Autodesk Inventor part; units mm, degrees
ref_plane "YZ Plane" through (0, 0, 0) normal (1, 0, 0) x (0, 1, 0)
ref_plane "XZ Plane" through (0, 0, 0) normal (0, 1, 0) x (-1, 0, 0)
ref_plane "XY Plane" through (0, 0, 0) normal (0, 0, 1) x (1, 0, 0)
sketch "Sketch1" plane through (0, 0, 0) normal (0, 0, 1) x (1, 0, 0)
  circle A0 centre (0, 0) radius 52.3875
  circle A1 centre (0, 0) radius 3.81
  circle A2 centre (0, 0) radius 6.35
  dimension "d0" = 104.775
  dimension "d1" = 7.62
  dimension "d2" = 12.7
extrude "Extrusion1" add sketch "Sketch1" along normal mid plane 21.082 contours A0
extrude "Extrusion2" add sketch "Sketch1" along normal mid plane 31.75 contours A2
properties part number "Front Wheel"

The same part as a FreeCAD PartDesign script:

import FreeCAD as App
import Part
import Sketcher
Q = App.Units.Quantity

doc = App.newDocument("Part")
body = doc.addObject("PartDesign::Body", "Body")

# Sketch on XY plane
sketch1 = body.newObject("Sketcher::SketchObject", "Sketch")
sketch1.AttachmentSupport = (doc.getObject("XY_Plane"), [""])
sketch1.MapMode = "FlatFace"
sketch1.addGeometry([
    Part.Circle(App.Vector(0, 0, 0), App.Vector(0, 0, 1), 52),
    Part.Circle(App.Vector(0, 0, 0), App.Vector(0, 0, 1), 6),
], False)
sketch1.addConstraint([
    Sketcher.Constraint("Coincident", 0, 3, -1, 1),
    Sketcher.Constraint("Coincident", 1, 3, -1, 1),
    Sketcher.Constraint("Diameter", 1, Q("0.5 in")),
    Sketcher.Constraint("Diameter", 0, Q("4.125 in")),
])
pad1 = body.newObject("PartDesign::Pad", "Pad")
pad1.Profile = sketch1
pad1.Length = Q("0.83 in")
pad1.Midplane = True

# Sketch on XY plane
sketch2 = body.newObject("Sketcher::SketchObject", "Sketch001")
sketch2.AttachmentSupport = (doc.getObject("XY_Plane"), [""])
sketch2.MapMode = "FlatFace"
sketch2.addGeometry([
    Part.Circle(App.Vector(0, 0, 0), App.Vector(0, 0, 1), 6.3),
    Part.Circle(App.Vector(0, 0, 0), App.Vector(0, 0, 1), 3.8),
], False)
sketch2.addConstraint([
    Sketcher.Constraint("Coincident", 0, 3, -1, 1),
    Sketcher.Constraint("Coincident", 1, 3, -1, 1),
    Sketcher.Constraint("Diameter", 0, Q("0.5 in")),
    Sketcher.Constraint("Diameter", 1, Q("0.3 in")),
])
pad2 = body.newObject("PartDesign::Pad", "Pad001")
pad2.Profile = sketch2
pad2.Length = Q("1.25 in")
pad2.Midplane = True

doc.recompute()
